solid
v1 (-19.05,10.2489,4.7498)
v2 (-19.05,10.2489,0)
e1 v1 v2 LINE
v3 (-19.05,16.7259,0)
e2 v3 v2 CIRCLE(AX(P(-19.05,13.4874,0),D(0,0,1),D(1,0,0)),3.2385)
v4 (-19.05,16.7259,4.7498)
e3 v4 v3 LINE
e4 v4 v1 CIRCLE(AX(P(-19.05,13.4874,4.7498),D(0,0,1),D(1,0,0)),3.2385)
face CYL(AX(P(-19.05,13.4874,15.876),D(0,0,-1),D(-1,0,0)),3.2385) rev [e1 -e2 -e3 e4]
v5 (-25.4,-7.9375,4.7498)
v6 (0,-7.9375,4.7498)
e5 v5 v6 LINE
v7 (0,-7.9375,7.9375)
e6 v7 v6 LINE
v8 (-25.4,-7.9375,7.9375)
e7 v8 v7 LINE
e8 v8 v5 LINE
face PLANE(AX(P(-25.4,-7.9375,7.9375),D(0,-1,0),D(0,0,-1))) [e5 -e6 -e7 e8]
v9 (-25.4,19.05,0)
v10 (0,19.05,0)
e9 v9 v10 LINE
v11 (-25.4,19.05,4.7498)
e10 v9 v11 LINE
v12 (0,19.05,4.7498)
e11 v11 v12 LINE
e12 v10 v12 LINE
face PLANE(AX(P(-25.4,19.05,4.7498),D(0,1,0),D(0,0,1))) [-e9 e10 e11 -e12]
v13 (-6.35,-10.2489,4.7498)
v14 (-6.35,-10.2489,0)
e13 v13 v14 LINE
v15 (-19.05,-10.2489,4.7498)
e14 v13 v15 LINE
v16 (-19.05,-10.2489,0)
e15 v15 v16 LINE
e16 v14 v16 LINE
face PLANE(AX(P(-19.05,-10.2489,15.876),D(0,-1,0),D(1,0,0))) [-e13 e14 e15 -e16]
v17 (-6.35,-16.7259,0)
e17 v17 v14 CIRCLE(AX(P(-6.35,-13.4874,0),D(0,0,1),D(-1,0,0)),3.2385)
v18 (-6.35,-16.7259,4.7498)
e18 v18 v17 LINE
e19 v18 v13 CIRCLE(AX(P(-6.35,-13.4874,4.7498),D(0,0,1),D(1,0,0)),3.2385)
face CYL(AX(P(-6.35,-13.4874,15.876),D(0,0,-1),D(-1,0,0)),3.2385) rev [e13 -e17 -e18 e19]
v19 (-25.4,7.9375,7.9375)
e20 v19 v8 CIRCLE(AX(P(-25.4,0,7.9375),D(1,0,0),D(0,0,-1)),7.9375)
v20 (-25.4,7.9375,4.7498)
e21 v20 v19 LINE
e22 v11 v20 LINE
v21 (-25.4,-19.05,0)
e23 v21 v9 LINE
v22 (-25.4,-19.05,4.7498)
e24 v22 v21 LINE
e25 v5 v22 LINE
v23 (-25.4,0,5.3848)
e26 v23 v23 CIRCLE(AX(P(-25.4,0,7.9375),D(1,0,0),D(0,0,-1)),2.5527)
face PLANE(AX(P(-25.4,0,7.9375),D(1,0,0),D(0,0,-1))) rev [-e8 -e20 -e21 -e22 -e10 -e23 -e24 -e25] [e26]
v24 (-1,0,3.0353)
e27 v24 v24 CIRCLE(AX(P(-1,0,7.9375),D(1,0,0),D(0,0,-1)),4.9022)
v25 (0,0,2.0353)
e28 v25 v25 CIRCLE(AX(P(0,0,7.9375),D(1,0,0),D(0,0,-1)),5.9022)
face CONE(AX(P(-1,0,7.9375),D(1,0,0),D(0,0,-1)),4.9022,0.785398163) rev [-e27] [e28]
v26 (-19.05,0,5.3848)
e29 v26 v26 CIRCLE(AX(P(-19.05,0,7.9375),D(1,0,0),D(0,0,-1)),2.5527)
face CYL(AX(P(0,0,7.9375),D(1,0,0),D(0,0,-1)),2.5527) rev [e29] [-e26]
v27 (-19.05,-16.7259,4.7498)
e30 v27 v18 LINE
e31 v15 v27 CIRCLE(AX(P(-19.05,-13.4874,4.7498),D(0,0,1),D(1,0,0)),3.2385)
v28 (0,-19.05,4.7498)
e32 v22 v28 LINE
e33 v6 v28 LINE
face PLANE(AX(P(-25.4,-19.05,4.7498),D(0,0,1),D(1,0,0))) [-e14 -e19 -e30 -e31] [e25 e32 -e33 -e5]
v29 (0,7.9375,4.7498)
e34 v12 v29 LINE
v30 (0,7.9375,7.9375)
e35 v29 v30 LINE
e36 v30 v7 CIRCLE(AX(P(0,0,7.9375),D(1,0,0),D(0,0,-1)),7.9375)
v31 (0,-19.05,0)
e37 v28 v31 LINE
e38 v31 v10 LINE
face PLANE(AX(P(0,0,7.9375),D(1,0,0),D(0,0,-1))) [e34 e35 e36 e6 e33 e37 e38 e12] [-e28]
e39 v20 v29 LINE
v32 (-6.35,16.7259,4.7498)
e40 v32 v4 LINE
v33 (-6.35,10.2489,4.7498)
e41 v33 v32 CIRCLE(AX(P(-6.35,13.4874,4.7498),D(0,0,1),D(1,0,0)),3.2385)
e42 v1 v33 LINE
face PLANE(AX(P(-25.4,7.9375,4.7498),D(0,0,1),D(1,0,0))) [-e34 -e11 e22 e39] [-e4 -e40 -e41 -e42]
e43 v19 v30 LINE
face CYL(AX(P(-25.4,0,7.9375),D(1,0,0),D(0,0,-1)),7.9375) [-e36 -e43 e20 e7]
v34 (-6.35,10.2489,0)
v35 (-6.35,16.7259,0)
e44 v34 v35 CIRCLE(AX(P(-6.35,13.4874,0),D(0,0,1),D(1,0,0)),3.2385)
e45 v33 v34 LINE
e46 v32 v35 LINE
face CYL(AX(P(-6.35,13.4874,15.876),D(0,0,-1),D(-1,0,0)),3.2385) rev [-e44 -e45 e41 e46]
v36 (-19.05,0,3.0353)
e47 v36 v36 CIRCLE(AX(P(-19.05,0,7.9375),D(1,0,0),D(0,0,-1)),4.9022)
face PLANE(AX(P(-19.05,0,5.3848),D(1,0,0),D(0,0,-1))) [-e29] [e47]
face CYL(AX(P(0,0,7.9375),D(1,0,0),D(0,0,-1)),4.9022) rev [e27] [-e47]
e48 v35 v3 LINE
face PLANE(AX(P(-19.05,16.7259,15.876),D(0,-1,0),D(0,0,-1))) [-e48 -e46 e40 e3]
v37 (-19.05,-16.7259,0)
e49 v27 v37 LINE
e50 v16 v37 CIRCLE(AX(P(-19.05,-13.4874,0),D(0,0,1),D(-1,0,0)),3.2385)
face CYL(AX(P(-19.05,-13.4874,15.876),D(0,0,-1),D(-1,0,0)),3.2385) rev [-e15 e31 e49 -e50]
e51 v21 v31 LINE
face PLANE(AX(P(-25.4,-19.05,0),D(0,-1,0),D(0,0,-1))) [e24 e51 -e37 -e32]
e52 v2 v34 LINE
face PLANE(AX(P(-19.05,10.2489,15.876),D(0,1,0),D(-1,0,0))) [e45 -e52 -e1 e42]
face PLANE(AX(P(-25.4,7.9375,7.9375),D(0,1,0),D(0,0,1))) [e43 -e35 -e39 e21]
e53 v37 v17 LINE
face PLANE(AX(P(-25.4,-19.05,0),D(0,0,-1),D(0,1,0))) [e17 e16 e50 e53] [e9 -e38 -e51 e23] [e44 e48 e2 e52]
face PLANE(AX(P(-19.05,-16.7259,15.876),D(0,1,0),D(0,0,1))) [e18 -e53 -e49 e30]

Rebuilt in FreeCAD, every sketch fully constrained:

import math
import FreeCAD as App
import Part
import Sketcher
Q = App.Units.Quantity


def add_polygon(sketch, points):
    """Adds a closed chain of lines whose ends are joined by coincident constraints."""
    first, n = sketch.GeometryCount, len(points)
    for a, b in zip(points, points[1:] + points[:1]):
        sketch.addGeometry(Part.LineSegment(App.Vector(*a, 0), App.Vector(*b, 0)), False)
    for i in range(n):
        sketch.addConstraint(Sketcher.Constraint("Coincident", first + i, 2, first + (i + 1) % n, 1))

doc = App.newDocument("Part")
body = doc.addObject("PartDesign::Body", "Body")

# Sketch on YZ plane
sketch1 = body.newObject("Sketcher::SketchObject", "Sketch")
sketch1.AttachmentSupport = (doc.getObject("YZ_Plane"), [""])
sketch1.MapMode = "FlatFace"
sketch1.addGeometry(Part.LineSegment(App.Vector(-19.05, 0, 0), App.Vector(19.05, 0, 0)), False)
sketch1.addGeometry(Part.LineSegment(App.Vector(19.05, 0, 0), App.Vector(19.05, 4.7498, 0)), False)
sketch1.addGeometry(Part.LineSegment(App.Vector(19.05, 4.7498, 0), App.Vector(7.9375, 4.7498, 0)), False)
sketch1.addGeometry(Part.LineSegment(App.Vector(7.9375, 4.7498, 0), App.Vector(7.9375, 7.9375, 0)), False)
sketch1.addGeometry(Part.ArcOfCircle(Part.Circle(App.Vector(0, 7.9375, 0), App.Vector(0, 0, 1), 7.9375), math.radians(0), math.radians(180)), False)
sketch1.addGeometry(Part.LineSegment(App.Vector(-7.9375, 7.9375, 0), App.Vector(-7.9375, 4.7498, 0)), False)
sketch1.addGeometry(Part.LineSegment(App.Vector(-7.9375, 4.7498, 0), App.Vector(-19.05, 4.7498, 0)), False)
sketch1.addGeometry(Part.LineSegment(App.Vector(-19.05, 4.7498, 0), App.Vector(-19.05, 0, 0)), False)
sketch1.addConstraint(Sketcher.Constraint("Coincident", 0, 2, 1, 1))
sketch1.addConstraint(Sketcher.Constraint("Coincident", 1, 2, 2, 1))
sketch1.addConstraint(Sketcher.Constraint("Coincident", 2, 2, 3, 1))
sketch1.addConstraint(Sketcher.Constraint("Tangent", 3, 2, 4, 1))
sketch1.addConstraint(Sketcher.Constraint("Tangent", 4, 2, 5, 1))
sketch1.addConstraint(Sketcher.Constraint("Coincident", 5, 2, 6, 1))
sketch1.addConstraint(Sketcher.Constraint("Coincident", 6, 2, 7, 1))
sketch1.addConstraint(Sketcher.Constraint("Coincident", 7, 2, 0, 1))
sketch1.addConstraint(Sketcher.Constraint("Horizontal", 0))
sketch1.addConstraint(Sketcher.Constraint("Vertical", 1))
sketch1.addConstraint(Sketcher.Constraint("Horizontal", 2))
sketch1.addConstraint(Sketcher.Constraint("Vertical", 3))
sketch1.addConstraint(Sketcher.Constraint("Vertical", 5))
sketch1.addConstraint(Sketcher.Constraint("Horizontal", 6))
sketch1.addConstraint(Sketcher.Constraint("Vertical", 7))
sketch1.addConstraint(Sketcher.Constraint("Symmetric", 0, 2, 7, 2, -1, 1))
sketch1.addConstraint(Sketcher.Constraint("Symmetric", 2, 2, 5, 2, -2))
sketch1.addConstraint(Sketcher.Constraint("DistanceX", 0, 1, 0, 2, Q("1.5 in")))
sketch1.addConstraint(Sketcher.Constraint("Radius", 4, Q("0.3125 in")))
sketch1.addConstraint(Sketcher.Constraint("DistanceY", 1, 1, 1, 2, Q("0.187 in")))
sketch1.addConstraint(Sketcher.Constraint("DistanceY", 3, 1, 3, 2, Q("0.1255 in")))
pad1 = body.newObject("PartDesign::Pad", "Pad")
pad1.Profile = sketch1
pad1.Length = Q("1 in")
pad1.Reversed = True

# Sketch on XZ plane
sketch2 = body.newObject("Sketcher::SketchObject", "Sketch001")
sketch2.AttachmentSupport = (doc.getObject("XZ_Plane"), [""])
sketch2.MapMode = "FlatFace"
add_polygon(sketch2, [(-25.4, 7.9375), (-25.4, 10.4902), (-19.05, 10.4902), (-19.05, 12.8397), (-1, 12.8397), (0, 13.8397), (0, 7.9375)])  # lines 0-6
sketch2.addGeometry(Part.LineSegment(App.Vector(0, 7.9375, 0), App.Vector(-25.4, 7.9375, 0)), True)  # axis
sketch2.addConstraint(Sketcher.Constraint("Vertical", 0))
sketch2.addConstraint(Sketcher.Constraint("Horizontal", 1))
sketch2.addConstraint(Sketcher.Constraint("Vertical", 2))
sketch2.addConstraint(Sketcher.Constraint("Horizontal", 3))
sketch2.addConstraint(Sketcher.Constraint("Vertical", 5))
sketch2.addConstraint(Sketcher.Constraint("Horizontal", 6))
sketch2.addConstraint(Sketcher.Constraint("Horizontal", 7))
sketch2.addConstraint(Sketcher.Constraint("Coincident", 7, 1, 5, 2))
sketch2.addConstraint(Sketcher.Constraint("PointOnObject", 4, 2, -2))
sketch2.addConstraint(Sketcher.Constraint("Vertical", 0, 2, 7, 2))
sketch2.addConstraint(Sketcher.Constraint("DistanceX", 6, 2, 6, 1, Q("1 in")))
sketch2.addConstraint(Sketcher.Constraint("Angle", 4, Q("45 deg")))
sketch2.addConstraint(Sketcher.Constraint("DistanceX", 1, 1, 1, 2, Q("0.25 in")))
sketch2.addConstraint(Sketcher.Constraint("DistanceY", 0, 1, 0, 2, Q("0.1005 in")))
sketch2.addConstraint(Sketcher.Constraint("DistanceY", 2, 1, 2, 2, Q("0.0925 in")))
sketch2.addConstraint(Sketcher.Constraint("DistanceY", -1, 1, 0, 2, Q("0.413 in")))
sketch2.addConstraint(Sketcher.Constraint("DistanceX", 3, 1, 3, 2, 18.05))
groove = body.newObject("PartDesign::Groove", "Groove")
groove.Profile = sketch2
groove.ReferenceAxis = (sketch2, ["Axis0"])
groove.Angle = 360

# Sketch on XY plane
sketch3 = body.newObject("Sketcher::SketchObject", "Sketch002")
sketch3.AttachmentSupport = (doc.getObject("XY_Plane"), [""])
sketch3.MapMode = "FlatFace"
sketch3.addGeometry(Part.LineSegment(App.Vector(-6.35, 16.7259, 0), App.Vector(-19.05, 16.7259, 0)), False)
sketch3.addGeometry(Part.ArcOfCircle(Part.Circle(App.Vector(-19.05, 13.4874, 0), App.Vector(0, 0, 1), 3.2385), math.radians(90), math.radians(270)), False)
sketch3.addGeometry(Part.LineSegment(App.Vector(-19.05, 10.2489, 0), App.Vector(-6.35, 10.2489, 0)), False)
sketch3.addGeometry(Part.ArcOfCircle(Part.Circle(App.Vector(-6.35, 13.4874, 0), App.Vector(0, 0, 1), 3.2385), math.radians(-90), math.radians(90)), False)
sketch3.addConstraint(Sketcher.Constraint("Tangent", 0, 2, 1, 1))
sketch3.addConstraint(Sketcher.Constraint("Tangent", 1, 2, 2, 1))
sketch3.addConstraint(Sketcher.Constraint("Tangent", 2, 2, 3, 1))
sketch3.addConstraint(Sketcher.Constraint("Tangent", 3, 2, 0, 1))
sketch3.addConstraint(Sketcher.Constraint("Horizontal", 0))
sketch3.addConstraint(Sketcher.Constraint("Horizontal", 2))
sketch3.addConstraint(Sketcher.Constraint("DistanceX", 0, 2, 0, 1, Q("0.5 in")))
sketch3.addConstraint(Sketcher.Constraint("Radius", 1, Q("0.1275 in")))
sketch3.addConstraint(Sketcher.Constraint("DistanceX", 1, 3, -1, 1, Q("0.75 in")))
sketch3.addConstraint(Sketcher.Constraint("DistanceY", -1, 1, 1, 3, Q("0.531 in")))
pocket1 = body.newObject("PartDesign::Pocket", "Pocket")
pocket1.Profile = sketch3
pocket1.Type = "UpToFirst"
pocket1.Reversed = True

# Sketch on XY plane
sketch4 = body.newObject("Sketcher::SketchObject", "Sketch003")
sketch4.AttachmentSupport = (doc.getObject("XY_Plane"), [""])
sketch4.MapMode = "FlatFace"
sketch4.addGeometry(Part.LineSegment(App.Vector(-19.05, -16.7259, 0), App.Vector(-6.35, -16.7259, 0)), False)
sketch4.addGeometry(Part.ArcOfCircle(Part.Circle(App.Vector(-6.35, -13.4874, 0), App.Vector(0, 0, 1), 3.2385), math.radians(-90), math.radians(90)), False)
sketch4.addGeometry(Part.LineSegment(App.Vector(-6.35, -10.2489, 0), App.Vector(-19.05, -10.2489, 0)), False)
sketch4.addGeometry(Part.ArcOfCircle(Part.Circle(App.Vector(-19.05, -13.4874, 0), App.Vector(0, 0, 1), 3.2385), math.radians(90), math.radians(270)), False)
sketch4.addConstraint(Sketcher.Constraint("Tangent", 0, 2, 1, 1))
sketch4.addConstraint(Sketcher.Constraint("Tangent", 1, 2, 2, 1))
sketch4.addConstraint(Sketcher.Constraint("Tangent", 2, 2, 3, 1))
sketch4.addConstraint(Sketcher.Constraint("Tangent", 3, 2, 0, 1))
sketch4.addConstraint(Sketcher.Constraint("Horizontal", 0))
sketch4.addConstraint(Sketcher.Constraint("Horizontal", 2))
sketch4.addConstraint(Sketcher.Constraint("DistanceX", 0, 1, 0, 2, Q("0.5 in")))
sketch4.addConstraint(Sketcher.Constraint("Radius", 1, Q("0.1275 in")))
sketch4.addConstraint(Sketcher.Constraint("DistanceX", 1, 3, -1, 1, Q("0.25 in")))
sketch4.addConstraint(Sketcher.Constraint("DistanceY", 1, 3, -1, 1, Q("0.531 in")))
pocket2 = body.newObject("PartDesign::Pocket", "Pocket001")
pocket2.Profile = sketch4
pocket2.Type = "UpToFirst"
pocket2.Reversed = True

doc.recompute()
